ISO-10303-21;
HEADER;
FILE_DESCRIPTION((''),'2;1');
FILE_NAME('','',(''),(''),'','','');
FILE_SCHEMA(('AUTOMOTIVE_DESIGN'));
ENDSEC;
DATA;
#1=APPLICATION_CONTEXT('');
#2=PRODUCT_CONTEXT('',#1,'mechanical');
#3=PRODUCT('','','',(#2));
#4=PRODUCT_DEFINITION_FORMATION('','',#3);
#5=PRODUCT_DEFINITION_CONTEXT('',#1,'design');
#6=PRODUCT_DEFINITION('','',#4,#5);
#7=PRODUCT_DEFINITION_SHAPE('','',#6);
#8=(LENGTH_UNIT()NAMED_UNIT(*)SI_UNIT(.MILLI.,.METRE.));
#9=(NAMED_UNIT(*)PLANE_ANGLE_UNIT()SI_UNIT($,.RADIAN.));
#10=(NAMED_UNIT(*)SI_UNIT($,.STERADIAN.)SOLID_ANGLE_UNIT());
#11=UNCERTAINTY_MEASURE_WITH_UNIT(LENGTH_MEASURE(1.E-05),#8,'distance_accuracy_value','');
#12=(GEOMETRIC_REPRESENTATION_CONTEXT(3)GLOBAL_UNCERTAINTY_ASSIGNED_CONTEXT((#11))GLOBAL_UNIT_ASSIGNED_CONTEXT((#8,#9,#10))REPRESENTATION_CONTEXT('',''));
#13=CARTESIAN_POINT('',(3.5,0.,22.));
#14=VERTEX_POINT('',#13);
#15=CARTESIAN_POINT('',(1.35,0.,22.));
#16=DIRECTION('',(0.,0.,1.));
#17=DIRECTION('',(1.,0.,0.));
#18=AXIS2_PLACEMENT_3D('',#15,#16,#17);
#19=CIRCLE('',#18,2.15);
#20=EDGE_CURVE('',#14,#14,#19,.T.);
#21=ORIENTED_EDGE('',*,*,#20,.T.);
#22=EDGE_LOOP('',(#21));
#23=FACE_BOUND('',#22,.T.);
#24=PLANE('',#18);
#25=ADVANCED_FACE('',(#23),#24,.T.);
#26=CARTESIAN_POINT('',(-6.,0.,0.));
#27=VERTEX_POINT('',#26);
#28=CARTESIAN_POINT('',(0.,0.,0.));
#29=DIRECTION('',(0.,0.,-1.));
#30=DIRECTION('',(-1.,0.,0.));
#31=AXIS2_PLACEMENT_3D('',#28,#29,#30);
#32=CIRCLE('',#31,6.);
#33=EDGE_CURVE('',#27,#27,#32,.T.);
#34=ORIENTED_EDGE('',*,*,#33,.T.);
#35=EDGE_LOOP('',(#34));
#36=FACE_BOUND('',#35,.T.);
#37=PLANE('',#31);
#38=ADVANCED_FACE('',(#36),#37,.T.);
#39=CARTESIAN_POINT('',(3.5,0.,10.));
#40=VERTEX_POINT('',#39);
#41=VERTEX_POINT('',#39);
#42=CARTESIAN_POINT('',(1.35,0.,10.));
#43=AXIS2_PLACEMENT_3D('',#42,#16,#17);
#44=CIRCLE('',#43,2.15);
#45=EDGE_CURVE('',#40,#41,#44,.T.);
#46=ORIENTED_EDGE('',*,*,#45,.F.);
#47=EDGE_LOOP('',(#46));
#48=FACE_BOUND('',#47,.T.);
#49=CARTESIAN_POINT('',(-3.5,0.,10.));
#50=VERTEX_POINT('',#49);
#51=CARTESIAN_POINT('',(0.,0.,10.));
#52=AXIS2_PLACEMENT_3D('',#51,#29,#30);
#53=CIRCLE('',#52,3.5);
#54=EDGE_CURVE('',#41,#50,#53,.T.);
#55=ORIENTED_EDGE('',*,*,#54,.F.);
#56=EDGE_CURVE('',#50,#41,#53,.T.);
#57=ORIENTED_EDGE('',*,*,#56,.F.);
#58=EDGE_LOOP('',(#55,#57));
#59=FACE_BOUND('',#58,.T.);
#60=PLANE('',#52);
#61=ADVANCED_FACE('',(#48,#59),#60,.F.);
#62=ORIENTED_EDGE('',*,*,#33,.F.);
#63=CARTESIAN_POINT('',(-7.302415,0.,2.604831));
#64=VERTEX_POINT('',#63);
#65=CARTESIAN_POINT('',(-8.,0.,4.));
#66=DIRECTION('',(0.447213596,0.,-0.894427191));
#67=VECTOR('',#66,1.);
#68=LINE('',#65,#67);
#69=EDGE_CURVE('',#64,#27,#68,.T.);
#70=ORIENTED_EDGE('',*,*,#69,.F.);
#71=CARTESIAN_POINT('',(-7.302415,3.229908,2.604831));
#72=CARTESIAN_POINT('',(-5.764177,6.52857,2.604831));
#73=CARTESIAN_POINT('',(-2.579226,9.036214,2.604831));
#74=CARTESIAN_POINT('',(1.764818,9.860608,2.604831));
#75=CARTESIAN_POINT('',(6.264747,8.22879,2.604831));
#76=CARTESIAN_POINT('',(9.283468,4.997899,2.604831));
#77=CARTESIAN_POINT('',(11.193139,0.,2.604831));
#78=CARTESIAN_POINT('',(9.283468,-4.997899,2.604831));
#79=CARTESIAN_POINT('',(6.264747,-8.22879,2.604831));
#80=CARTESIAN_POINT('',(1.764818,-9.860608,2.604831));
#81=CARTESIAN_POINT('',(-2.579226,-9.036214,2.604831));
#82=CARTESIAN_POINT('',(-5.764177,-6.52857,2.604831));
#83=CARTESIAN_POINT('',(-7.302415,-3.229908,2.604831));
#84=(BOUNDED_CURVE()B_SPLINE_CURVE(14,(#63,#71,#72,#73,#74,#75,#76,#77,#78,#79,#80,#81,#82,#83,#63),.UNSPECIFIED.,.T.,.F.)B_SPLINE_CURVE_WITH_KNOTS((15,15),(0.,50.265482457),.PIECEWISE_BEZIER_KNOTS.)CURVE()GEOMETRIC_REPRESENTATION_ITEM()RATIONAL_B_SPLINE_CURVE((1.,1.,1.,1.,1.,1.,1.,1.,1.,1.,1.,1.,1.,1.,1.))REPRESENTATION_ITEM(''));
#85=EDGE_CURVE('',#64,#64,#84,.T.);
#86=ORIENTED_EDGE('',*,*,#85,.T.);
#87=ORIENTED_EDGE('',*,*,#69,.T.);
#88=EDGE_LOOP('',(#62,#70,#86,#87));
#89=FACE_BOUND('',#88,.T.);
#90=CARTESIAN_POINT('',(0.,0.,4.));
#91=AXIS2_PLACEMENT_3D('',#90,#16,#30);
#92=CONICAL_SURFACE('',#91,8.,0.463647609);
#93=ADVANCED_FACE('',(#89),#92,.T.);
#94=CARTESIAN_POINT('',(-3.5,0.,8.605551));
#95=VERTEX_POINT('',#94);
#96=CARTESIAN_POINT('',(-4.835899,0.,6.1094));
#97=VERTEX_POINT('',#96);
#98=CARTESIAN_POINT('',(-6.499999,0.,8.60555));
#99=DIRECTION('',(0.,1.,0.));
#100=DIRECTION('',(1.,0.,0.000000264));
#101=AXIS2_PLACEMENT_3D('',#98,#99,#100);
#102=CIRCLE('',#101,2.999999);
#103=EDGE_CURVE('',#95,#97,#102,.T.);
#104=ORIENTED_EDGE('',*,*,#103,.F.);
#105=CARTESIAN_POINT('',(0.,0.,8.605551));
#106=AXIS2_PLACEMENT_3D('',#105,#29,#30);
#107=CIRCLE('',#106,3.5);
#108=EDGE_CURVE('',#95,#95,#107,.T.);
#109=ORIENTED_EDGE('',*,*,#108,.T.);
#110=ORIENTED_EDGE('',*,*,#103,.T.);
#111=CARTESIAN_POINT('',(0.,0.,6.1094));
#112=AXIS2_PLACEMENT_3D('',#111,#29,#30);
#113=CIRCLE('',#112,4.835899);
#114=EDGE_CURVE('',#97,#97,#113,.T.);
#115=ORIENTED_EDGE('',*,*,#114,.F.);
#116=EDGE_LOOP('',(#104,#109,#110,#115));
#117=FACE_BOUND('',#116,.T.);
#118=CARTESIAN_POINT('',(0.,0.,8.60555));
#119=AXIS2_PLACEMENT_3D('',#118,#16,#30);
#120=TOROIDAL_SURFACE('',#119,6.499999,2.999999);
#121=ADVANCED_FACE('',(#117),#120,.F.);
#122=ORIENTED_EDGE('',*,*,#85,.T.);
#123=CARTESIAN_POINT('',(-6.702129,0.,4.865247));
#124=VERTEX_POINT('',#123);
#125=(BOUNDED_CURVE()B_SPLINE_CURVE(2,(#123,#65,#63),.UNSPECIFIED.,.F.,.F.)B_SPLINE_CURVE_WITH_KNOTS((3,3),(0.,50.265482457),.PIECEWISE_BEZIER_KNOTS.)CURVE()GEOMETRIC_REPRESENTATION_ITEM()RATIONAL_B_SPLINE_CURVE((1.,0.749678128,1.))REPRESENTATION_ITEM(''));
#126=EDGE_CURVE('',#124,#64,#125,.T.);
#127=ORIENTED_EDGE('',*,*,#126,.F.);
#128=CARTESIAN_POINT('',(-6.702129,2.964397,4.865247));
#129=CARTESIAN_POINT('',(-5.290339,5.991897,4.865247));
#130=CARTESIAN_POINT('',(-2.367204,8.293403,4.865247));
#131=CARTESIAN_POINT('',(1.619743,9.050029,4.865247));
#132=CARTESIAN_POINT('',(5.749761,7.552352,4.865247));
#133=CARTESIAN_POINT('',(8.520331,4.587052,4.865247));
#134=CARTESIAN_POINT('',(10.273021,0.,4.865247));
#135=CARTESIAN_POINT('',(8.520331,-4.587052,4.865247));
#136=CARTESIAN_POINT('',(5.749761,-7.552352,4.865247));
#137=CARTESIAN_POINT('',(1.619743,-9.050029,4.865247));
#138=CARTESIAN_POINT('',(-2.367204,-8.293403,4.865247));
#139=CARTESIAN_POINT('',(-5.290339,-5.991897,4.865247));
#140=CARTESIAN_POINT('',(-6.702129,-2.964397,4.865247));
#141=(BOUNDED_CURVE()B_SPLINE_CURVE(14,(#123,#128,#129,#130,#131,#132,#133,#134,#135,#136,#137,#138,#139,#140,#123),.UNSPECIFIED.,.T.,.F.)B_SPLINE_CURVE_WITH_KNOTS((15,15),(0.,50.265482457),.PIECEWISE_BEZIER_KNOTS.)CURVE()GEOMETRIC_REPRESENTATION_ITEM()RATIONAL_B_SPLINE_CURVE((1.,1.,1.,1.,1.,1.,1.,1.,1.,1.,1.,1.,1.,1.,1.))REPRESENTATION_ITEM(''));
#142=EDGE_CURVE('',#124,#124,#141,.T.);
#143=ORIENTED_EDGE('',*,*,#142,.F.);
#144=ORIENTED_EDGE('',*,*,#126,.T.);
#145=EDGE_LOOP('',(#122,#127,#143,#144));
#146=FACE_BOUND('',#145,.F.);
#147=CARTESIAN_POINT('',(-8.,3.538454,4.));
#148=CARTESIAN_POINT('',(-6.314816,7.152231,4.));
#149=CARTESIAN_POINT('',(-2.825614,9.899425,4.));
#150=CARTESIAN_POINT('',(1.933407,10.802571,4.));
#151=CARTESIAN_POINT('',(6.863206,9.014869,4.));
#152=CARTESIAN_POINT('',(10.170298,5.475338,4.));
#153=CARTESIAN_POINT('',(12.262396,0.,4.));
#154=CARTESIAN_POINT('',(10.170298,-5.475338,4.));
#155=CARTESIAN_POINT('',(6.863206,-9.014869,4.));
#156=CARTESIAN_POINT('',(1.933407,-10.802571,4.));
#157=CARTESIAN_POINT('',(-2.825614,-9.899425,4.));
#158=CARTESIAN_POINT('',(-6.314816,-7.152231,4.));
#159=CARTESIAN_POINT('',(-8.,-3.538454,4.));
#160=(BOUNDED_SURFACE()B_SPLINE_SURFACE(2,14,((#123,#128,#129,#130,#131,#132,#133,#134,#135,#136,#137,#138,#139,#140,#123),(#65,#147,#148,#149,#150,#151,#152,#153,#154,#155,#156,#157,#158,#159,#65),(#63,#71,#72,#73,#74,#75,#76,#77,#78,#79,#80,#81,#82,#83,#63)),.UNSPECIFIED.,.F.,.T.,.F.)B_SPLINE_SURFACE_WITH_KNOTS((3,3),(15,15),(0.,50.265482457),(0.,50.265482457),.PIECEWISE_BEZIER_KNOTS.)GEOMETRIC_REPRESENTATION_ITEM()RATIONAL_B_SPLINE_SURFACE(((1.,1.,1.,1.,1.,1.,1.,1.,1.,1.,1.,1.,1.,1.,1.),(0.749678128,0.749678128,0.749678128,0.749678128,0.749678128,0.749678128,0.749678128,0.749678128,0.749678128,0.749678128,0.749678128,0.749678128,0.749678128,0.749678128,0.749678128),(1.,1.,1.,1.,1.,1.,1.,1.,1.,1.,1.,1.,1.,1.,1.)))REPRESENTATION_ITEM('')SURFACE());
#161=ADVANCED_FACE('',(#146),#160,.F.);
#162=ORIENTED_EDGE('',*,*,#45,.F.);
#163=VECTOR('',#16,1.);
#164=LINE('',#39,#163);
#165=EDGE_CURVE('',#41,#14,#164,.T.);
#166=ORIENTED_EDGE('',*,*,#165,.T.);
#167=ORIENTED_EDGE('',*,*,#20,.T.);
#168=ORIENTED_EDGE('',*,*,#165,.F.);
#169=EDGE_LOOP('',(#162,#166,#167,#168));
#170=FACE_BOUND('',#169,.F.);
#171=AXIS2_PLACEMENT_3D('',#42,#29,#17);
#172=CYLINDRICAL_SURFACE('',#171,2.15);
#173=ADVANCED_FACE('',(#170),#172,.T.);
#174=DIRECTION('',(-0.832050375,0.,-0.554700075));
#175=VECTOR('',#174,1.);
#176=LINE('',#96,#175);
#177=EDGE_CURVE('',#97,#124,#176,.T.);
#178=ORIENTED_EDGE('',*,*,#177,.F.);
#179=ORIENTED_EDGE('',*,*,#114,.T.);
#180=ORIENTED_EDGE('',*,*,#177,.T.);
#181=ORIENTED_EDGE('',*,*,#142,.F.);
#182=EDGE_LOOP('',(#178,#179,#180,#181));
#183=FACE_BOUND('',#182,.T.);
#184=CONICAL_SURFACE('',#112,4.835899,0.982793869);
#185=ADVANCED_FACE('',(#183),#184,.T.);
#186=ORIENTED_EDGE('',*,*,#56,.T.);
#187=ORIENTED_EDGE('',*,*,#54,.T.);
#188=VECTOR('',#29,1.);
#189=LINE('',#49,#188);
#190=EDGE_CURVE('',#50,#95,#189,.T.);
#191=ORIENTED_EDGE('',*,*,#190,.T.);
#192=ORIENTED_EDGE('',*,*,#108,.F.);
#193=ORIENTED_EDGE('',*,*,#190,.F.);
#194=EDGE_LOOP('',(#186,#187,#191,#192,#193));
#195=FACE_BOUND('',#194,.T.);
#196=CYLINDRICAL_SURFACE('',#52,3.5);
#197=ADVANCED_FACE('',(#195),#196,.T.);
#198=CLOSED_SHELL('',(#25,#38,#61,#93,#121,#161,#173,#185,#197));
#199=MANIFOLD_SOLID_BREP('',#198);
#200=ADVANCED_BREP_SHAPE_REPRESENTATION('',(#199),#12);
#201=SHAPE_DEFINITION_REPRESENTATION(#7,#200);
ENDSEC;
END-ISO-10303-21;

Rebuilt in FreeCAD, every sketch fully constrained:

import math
import FreeCAD as App
import Part
import Sketcher


def edges_at(feature, points):
    """Names of the edges that pass closest to the given points."""
    edges = feature.Shape.Edges
    near = lambda p: min(range(len(edges)), key=lambda i: edges[i].distToShape(Part.Vertex(*p))[0])
    return sorted({f"Edge{near(p) + 1}" for p in points})

doc = App.newDocument("Part")
body = doc.addObject("PartDesign::Body", "Body")

# Sketch on XZ plane
sketch1 = body.newObject("Sketcher::SketchObject", "Sketch")
sketch1.AttachmentSupport = (doc.getObject("XZ_Plane"), [""])
sketch1.MapMode = "FlatFace"
sketch1.addGeometry(Part.LineSegment(App.Vector(-6, 0, 0), App.Vector(0, 0, 0)), False)
sketch1.addGeometry(Part.LineSegment(App.Vector(0, 0, 0), App.Vector(0, 10, 0)), False)
sketch1.addGeometry(Part.LineSegment(App.Vector(0, 10, 0), App.Vector(-3.5, 10, 0)), False)
sketch1.addGeometry(Part.LineSegment(App.Vector(-3.5, 10, 0), App.Vector(-3.5, 8.605551, 0)), False)
sketch1.addGeometry(Part.ArcOfCircle(Part.Circle(App.Vector(-6.499999, 8.60555, 0), App.Vector(0, 0, 1), 2.999999), math.radians(-56.309931), math.radians(0.000015)), False)
sketch1.addGeometry(Part.LineSegment(App.Vector(-4.835899, 6.1094, 0), App.Vector(-8, 4, 0)), False)
sketch1.addGeometry(Part.LineSegment(App.Vector(-8, 4, 0), App.Vector(-6, 0, 0)), False)
sketch1.addConstraint(Sketcher.Constraint("Coincident", 0, 2, 1, 1))
sketch1.addConstraint(Sketcher.Constraint("Coincident", 1, 2, 2, 1))
sketch1.addConstraint(Sketcher.Constraint("Coincident", 2, 2, 3, 1))
sketch1.addConstraint(Sketcher.Constraint("Tangent", 3, 2, 4, 2))
sketch1.addConstraint(Sketcher.Constraint("Tangent", 4, 1, 5, 1))
sketch1.addConstraint(Sketcher.Constraint("Coincident", 5, 2, 6, 1))
sketch1.addConstraint(Sketcher.Constraint("Coincident", 6, 2, 0, 1))
sketch1.addConstraint(Sketcher.Constraint("Horizontal", 0))
sketch1.addConstraint(Sketcher.Constraint("Vertical", 1))
sketch1.addConstraint(Sketcher.Constraint("Horizontal", 2))
sketch1.addConstraint(Sketcher.Constraint("Vertical", 3))
sketch1.addConstraint(Sketcher.Constraint("Coincident", 0, 2, -1, 1))
sketch1.addConstraint(Sketcher.Constraint("Radius", 4, 2.999999))
sketch1.addConstraint(Sketcher.Constraint("DistanceX", 0, 1, 0, 2, 6.0))
sketch1.addConstraint(Sketcher.Constraint("DistanceY", 1, 1, 1, 2, 10.0))
sketch1.addConstraint(Sketcher.Constraint("DistanceX", 2, 2, 2, 1, 3.5))
sketch1.addConstraint(Sketcher.Constraint("DistanceX", 5, 2, -1, 1, 8.0))
sketch1.addConstraint(Sketcher.Constraint("DistanceY", -1, 1, 5, 2, 4.0))
sketch1.addConstraint(Sketcher.Constraint("DistanceY", 3, 2, 3, 1, 1.394449))
revolution = body.newObject("PartDesign::Revolution", "Revolution")
revolution.Profile = sketch1
revolution.ReferenceAxis = (sketch1, ["V_Axis"])
revolution.Angle = 360
doc.recompute()

fillet = body.newObject("PartDesign::Fillet", "Fillet")
fillet.Base = (revolution, edges_at(revolution, [(8, 0, 4)]))
fillet.Radius = 1.766966

# Sketch on XY plane
sketch2 = body.newObject("Sketcher::SketchObject", "Sketch001")
sketch2.AttachmentSupport = (doc.getObject("XY_Plane"), [""])
sketch2.MapMode = "FlatFace"
sketch2.AttachmentOffset = App.Placement(App.Vector(0, 0, 10), App.Rotation())
sketch2.addGeometry(Part.Circle(App.Vector(1.35, 0, 0), App.Vector(0, 0, 1), 2.15), False)
sketch2.addConstraint(Sketcher.Constraint("PointOnObject", 0, 3, -1))
sketch2.addConstraint(Sketcher.Constraint("Diameter", 0, 4.3))
sketch2.addConstraint(Sketcher.Constraint("DistanceX", -1, 1, 0, 3, 1.35))
pad1 = body.newObject("PartDesign::Pad", "Pad")
pad1.Profile = sketch2
pad1.Length = 12

doc.recompute()
